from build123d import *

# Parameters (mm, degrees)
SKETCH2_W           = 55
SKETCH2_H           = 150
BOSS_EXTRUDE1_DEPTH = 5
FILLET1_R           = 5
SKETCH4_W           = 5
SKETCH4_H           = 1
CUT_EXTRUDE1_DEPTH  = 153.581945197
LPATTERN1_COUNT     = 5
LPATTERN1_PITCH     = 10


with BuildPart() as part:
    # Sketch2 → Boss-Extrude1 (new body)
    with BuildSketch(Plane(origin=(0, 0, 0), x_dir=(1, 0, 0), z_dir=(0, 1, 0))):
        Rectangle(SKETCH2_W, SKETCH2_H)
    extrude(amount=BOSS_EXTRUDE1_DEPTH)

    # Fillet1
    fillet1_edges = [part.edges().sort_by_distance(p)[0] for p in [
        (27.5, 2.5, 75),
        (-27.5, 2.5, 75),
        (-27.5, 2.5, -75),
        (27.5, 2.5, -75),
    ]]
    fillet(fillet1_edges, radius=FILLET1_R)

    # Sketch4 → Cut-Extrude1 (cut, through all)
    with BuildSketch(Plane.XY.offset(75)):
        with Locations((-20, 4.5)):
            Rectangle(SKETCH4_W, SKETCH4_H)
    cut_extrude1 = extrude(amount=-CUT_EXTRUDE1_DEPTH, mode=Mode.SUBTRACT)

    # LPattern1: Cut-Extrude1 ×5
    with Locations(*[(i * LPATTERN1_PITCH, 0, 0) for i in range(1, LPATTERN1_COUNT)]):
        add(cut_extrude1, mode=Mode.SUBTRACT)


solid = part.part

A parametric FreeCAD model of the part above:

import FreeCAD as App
import Part
import Sketcher

V = App.Vector
Q = App.Units.Quantity


def edges_at(feature, points):
    """Names of the edges that pass closest to the given points."""
    edges = feature.Shape.Edges
    near = lambda p: min(range(len(edges)), key=lambda i: edges[i].distToShape(Part.Vertex(*p))[0])
    return sorted({f"Edge{near(p) + 1}" for p in points})


def add_polygon(sketch, points):
    """Adds a closed chain of lines whose ends are joined by coincident constraints."""
    first, n = sketch.GeometryCount, len(points)
    for a, b in zip(points, points[1:] + points[:1]):
        sketch.addGeometry(Part.LineSegment(App.Vector(*a, 0), App.Vector(*b, 0)), False)
    for i in range(n):
        sketch.addConstraint(Sketcher.Constraint("Coincident", first + i, 2, first + (i + 1) % n, 1))

doc = App.newDocument("Part")
body = doc.addObject("PartDesign::Body", "Body")

# Sketch on XZ plane
sketch1 = body.newObject("Sketcher::SketchObject", "Sketch")
sketch1.AttachmentSupport = (doc.getObject("XZ_Plane"), [""])
sketch1.MapMode = "FlatFace"
add_polygon(sketch1, [(-28, -75), (-28, 75), (28, 75), (28, -75)])  # lines 0-3
sketch1.addConstraint([
    Sketcher.Constraint("Vertical", 0),
    Sketcher.Constraint("Horizontal", 1),
    Sketcher.Constraint("Vertical", 2),
    Sketcher.Constraint("Horizontal", 3),
    Sketcher.Constraint("Symmetric", 0, 2, 2, 2, -1, 1),
    Sketcher.Constraint("DistanceX", 1, 1, 1, 2, Q("55 mm")),
    Sketcher.Constraint("DistanceY", 0, 1, 0, 2, Q("150 mm")),
])
pad1 = body.newObject("PartDesign::Pad", "Pad")
pad1.Profile = sketch1
pad1.Length = 5
pad1.Reversed = True
doc.recompute()

fillet = body.newObject("PartDesign::Fillet", "Fillet")
fillet.Base = (pad1, edges_at(pad1, [
    (27.5, 2.5, 75),
    (-27.5, 2.5, 75),
    (-27.5, 2.5, -75),
    (27.5, 2.5, -75),
]))
fillet.Radius = 5

# Sketch on XY plane
sketch2 = body.newObject("Sketcher::SketchObject", "Sketch001")
sketch2.AttachmentSupport = (doc.getObject("XY_Plane"), [""])
sketch2.MapMode = "FlatFace"
sketch2.AttachmentOffset = App.Placement(V(0, 0, 75), App.Rotation())
add_polygon(sketch2, [(-22.5, 5), (-22.5, 4), (-17.5, 4), (-17.5, 5)])  # lines 0-3
sketch2.addConstraint([
    Sketcher.Constraint("Vertical", 0),
    Sketcher.Constraint("Horizontal", 1),
    Sketcher.Constraint("Vertical", 2),
    Sketcher.Constraint("Horizontal", 3),
    Sketcher.Constraint("DistanceX", 1, 1, 1, 2, Q("5 mm")),
    Sketcher.Constraint("DistanceY", 0, 2, 0, 1, Q("1 mm")),
    Sketcher.Constraint("DistanceY", -1, 1, 0, 2, Q("4 mm")),
    Sketcher.Constraint("DistanceX", 0, 2, -1, 1, Q("22.5 mm")),
])
pocket1 = body.newObject("PartDesign::Pocket", "Pocket")
pocket1.Profile = sketch2
pocket1.Type = "ThroughAll"
doc.recompute()

linearpattern = body.newObject("PartDesign::LinearPattern", "LinearPattern")
linearpattern.Originals = [pocket1]
linearpattern.Direction = (doc.getObject("X_Axis"), [""])
linearpattern.Mode = "offset"
linearpattern.Offset = 10
linearpattern.Occurrences = 5
body.Tip = linearpattern

doc.recompute()
